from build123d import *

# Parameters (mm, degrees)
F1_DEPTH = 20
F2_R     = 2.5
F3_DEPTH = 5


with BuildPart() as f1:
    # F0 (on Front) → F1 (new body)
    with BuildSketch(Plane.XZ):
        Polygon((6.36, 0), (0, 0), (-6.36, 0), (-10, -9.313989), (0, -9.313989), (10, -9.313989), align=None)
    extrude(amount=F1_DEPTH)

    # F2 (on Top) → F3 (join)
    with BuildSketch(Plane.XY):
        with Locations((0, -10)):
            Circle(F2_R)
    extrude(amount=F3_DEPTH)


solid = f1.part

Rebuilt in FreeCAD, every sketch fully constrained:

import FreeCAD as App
import Part
import Sketcher
Q = App.Units.Quantity

doc = App.newDocument("Part")
body = doc.addObject("PartDesign::Body", "Body")

sketch1 = body.newObject("Sketcher::SketchObject", "Sketch")
sketch1.AttachmentSupport = (doc.getObject("XZ_Plane"), [""])
sketch1.MapMode = "FlatFace"
sketch1.addGeometry([
    Part.LineSegment(App.Vector(6.36, 0, 0), App.Vector(-6.36, 0, 0)),
    Part.LineSegment(App.Vector(-6.36, 0, 0), App.Vector(-10, -9.313989, 0)),
    Part.LineSegment(App.Vector(-10, -9.313989, 0), App.Vector(10, -9.313989, 0)),
    Part.LineSegment(App.Vector(10, -9.313989, 0), App.Vector(6.36, 0, 0)),
], False)
sketch1.addConstraint([
    Sketcher.Constraint("Coincident", 0, 2, 1, 1),
    Sketcher.Constraint("Coincident", 1, 2, 2, 1),
    Sketcher.Constraint("Coincident", 2, 2, 3, 1),
    Sketcher.Constraint("Coincident", 3, 2, 0, 1),
    Sketcher.Constraint("Horizontal", 0),
    Sketcher.Constraint("Horizontal", 2),
    Sketcher.Constraint("Symmetric", 0, 2, 3, 2, -1, 1),
    Sketcher.Constraint("Equal", 1, 3),
    Sketcher.Constraint("DistanceX", 2, 1, 2, 2, Q("20 mm")),
    Sketcher.Constraint("Distance", 1, Q("10 mm")),
    Sketcher.Constraint("DistanceX", 0, 2, 0, 1, Q("12.72 mm")),
])
pad1 = body.newObject("PartDesign::Pad", "Pad")
pad1.Profile = sketch1
pad1.Length = 20

sketch2 = body.newObject("Sketcher::SketchObject", "Sketch001")
sketch2.AttachmentSupport = (doc.getObject("XY_Plane"), [""])
sketch2.MapMode = "FlatFace"
sketch2.addGeometry(Part.Circle(App.Vector(0, -10, 0), App.Vector(0, 0, 1), 2.5), False)
sketch2.addConstraint([
    Sketcher.Constraint("PointOnObject", 0, 3, -2),
    Sketcher.Constraint("Diameter", 0, Q("5 mm")),
    Sketcher.Constraint("DistanceY", 0, 3, -1, 1, Q("10 mm")),
])
pad2 = body.newObject("PartDesign::Pad", "Pad001")
pad2.Profile = sketch2
pad2.Length = 5

doc.recompute()
